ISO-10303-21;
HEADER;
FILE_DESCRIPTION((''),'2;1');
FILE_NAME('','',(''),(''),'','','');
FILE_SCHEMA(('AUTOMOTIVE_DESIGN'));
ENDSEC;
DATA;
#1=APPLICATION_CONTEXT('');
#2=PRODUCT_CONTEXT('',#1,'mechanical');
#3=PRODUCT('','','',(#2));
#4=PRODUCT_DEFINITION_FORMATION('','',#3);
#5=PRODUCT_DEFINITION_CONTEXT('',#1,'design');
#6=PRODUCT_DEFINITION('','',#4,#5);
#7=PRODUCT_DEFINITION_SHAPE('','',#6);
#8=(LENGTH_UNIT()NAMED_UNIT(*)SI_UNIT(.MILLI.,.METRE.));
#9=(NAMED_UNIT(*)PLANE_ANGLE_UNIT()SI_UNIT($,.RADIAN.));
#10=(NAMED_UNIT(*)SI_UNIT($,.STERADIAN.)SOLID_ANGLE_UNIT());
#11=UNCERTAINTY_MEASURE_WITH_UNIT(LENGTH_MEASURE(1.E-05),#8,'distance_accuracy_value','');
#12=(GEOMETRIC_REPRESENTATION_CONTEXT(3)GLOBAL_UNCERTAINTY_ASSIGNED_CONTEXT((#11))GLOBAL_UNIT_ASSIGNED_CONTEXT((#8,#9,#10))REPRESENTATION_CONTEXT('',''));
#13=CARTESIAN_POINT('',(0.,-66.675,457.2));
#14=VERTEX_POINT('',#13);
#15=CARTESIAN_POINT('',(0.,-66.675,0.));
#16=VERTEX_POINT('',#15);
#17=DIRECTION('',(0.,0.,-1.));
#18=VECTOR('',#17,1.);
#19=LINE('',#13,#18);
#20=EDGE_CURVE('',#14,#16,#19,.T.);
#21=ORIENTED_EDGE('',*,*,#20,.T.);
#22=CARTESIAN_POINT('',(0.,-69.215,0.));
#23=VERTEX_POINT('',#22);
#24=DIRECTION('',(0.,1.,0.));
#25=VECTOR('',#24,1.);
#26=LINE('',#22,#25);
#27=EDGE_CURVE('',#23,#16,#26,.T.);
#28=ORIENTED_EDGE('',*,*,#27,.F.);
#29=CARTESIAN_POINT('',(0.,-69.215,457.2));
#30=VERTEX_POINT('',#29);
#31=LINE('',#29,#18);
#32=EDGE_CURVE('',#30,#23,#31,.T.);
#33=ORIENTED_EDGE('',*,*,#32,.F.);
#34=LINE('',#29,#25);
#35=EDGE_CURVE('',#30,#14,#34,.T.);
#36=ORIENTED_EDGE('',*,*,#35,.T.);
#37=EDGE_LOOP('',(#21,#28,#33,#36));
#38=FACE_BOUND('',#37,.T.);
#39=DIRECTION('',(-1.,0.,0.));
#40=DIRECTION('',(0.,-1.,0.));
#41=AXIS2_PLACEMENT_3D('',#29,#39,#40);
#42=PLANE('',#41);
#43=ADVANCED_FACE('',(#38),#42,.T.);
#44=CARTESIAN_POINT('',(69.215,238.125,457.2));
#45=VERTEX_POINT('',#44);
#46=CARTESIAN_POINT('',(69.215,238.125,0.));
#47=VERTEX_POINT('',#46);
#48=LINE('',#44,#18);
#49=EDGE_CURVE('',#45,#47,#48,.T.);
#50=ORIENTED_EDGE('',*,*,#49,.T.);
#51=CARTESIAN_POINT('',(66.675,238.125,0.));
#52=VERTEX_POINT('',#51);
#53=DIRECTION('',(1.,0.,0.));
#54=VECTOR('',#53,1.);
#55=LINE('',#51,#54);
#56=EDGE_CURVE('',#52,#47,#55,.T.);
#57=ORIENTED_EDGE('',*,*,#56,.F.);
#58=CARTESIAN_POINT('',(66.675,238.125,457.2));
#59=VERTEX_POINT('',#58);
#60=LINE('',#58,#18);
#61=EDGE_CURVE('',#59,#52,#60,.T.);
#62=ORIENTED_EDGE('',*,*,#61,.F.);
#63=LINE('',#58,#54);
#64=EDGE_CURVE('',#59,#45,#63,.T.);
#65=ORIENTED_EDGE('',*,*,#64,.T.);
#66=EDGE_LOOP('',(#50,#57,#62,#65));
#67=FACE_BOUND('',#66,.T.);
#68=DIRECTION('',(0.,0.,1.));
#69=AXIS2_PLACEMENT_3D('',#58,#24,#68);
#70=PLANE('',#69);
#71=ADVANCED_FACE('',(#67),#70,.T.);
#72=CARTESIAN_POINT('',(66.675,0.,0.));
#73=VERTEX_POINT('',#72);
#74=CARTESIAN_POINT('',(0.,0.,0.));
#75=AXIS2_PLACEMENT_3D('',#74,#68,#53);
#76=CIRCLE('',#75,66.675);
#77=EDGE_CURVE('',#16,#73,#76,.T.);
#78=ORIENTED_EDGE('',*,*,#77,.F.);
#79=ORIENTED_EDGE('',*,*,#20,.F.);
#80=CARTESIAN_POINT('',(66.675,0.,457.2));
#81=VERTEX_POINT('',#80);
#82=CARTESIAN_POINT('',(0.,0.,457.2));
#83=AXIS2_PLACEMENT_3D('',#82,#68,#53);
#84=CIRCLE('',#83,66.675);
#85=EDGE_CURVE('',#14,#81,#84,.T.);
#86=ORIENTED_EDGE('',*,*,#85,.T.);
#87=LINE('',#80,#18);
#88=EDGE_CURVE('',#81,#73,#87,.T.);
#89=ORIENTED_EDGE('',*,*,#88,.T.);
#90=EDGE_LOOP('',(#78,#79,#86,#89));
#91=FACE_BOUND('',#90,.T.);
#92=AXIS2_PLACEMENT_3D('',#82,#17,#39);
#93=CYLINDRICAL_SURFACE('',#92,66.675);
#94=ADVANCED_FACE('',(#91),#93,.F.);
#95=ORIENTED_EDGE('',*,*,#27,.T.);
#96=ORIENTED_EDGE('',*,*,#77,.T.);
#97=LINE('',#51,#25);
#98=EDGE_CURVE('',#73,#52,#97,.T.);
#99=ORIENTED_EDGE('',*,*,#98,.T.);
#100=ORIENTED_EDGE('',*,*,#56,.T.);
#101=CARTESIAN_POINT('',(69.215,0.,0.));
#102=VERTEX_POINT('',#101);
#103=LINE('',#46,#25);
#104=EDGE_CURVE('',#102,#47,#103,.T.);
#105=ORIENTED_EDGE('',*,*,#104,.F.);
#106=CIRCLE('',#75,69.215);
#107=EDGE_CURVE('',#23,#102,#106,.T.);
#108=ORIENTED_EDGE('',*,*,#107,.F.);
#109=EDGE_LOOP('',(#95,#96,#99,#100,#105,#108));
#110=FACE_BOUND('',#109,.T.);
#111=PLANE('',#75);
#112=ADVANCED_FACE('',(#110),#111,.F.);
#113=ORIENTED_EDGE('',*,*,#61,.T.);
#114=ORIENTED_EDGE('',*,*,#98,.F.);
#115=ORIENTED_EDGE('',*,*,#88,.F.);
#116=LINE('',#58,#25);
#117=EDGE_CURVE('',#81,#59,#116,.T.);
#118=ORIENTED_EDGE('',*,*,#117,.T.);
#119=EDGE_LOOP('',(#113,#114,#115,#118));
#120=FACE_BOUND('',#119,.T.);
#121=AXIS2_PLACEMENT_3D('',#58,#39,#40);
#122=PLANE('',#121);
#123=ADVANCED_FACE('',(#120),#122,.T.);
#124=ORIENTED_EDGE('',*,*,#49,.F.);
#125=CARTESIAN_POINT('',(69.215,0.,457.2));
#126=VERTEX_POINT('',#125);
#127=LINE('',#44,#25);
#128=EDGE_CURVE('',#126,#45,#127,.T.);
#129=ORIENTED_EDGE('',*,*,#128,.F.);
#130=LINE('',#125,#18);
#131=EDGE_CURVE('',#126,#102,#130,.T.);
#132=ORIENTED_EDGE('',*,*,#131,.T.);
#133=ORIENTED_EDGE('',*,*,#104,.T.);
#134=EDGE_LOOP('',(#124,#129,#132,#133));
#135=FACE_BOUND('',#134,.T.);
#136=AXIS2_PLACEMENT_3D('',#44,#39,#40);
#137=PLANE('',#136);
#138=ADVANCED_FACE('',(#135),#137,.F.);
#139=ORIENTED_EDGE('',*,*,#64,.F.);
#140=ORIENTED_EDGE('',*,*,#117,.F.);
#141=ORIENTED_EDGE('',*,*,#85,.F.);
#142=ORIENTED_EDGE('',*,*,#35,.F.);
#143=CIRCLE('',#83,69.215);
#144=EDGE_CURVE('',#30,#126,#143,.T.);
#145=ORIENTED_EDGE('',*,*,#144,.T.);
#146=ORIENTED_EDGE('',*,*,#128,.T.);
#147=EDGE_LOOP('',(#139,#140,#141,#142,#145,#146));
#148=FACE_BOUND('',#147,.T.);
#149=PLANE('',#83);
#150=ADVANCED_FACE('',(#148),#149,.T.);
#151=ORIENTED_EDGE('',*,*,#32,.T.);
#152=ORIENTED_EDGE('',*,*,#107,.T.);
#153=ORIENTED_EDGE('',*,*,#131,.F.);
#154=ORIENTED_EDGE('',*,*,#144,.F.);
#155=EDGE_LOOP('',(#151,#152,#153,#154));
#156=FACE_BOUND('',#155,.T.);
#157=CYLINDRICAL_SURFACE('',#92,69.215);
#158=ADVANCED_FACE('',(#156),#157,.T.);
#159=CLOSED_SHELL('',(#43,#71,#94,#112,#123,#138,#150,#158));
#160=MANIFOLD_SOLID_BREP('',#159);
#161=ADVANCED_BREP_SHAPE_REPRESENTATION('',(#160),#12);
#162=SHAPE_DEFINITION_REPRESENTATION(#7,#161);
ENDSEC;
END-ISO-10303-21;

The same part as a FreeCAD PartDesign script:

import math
import FreeCAD as App
import Part
import Sketcher
Q = App.Units.Quantity

doc = App.newDocument("Part")
body = doc.addObject("PartDesign::Body", "Body")

# Sketch on XY plane
sketch1 = doc.addObject("Sketcher::SketchObject", "Sketch")
body.addObject(sketch1)
sketch1.AttachmentSupport = (doc.XY_Plane, [""])
sketch1.MapMode = "FlatFace"
sketch1.addGeometry(Part.LineSegment(App.Vector(66.675, 238.125, 0), App.Vector(66.675, 0, 0)), False)
sketch1.addGeometry(Part.ArcOfCircle(Part.Circle(App.Vector(0, 0, 0), App.Vector(0, 0, 1), 66.675), math.radians(-90), math.radians(0)), False)
sketch1.addGeometry(Part.LineSegment(App.Vector(0, -66.675, 0), App.Vector(0, -69.215, 0)), False)
sketch1.addGeometry(Part.ArcOfCircle(Part.Circle(App.Vector(0, 0, 0), App.Vector(0, 0, 1), 69.215), math.radians(-90), math.radians(0)), False)
sketch1.addGeometry(Part.LineSegment(App.Vector(69.215, 0, 0), App.Vector(69.215, 238.125, 0)), False)
sketch1.addGeometry(Part.LineSegment(App.Vector(69.215, 238.125, 0), App.Vector(66.675, 238.125, 0)), False)
sketch1.addConstraint(Sketcher.Constraint("Tangent", 0, 2, 1, 2))
sketch1.addConstraint(Sketcher.Constraint("Coincident", 1, 1, 2, 1))
sketch1.addConstraint(Sketcher.Constraint("Coincident", 2, 2, 3, 1))
sketch1.addConstraint(Sketcher.Constraint("Tangent", 3, 2, 4, 1))
sketch1.addConstraint(Sketcher.Constraint("Coincident", 4, 2, 5, 1))
sketch1.addConstraint(Sketcher.Constraint("Coincident", 5, 2, 0, 1))
sketch1.addConstraint(Sketcher.Constraint("Vertical", 0))
sketch1.addConstraint(Sketcher.Constraint("Vertical", 2))
sketch1.addConstraint(Sketcher.Constraint("Vertical", 4))
sketch1.addConstraint(Sketcher.Constraint("Horizontal", 5))
sketch1.addConstraint(Sketcher.Constraint("Coincident", 1, 3, -1, 1))
sketch1.addConstraint(Sketcher.Constraint("Coincident", 3, 3, -1, 1))
sketch1.addConstraint(Sketcher.Constraint("PointOnObject", 1, 1, -2))
sketch1.addConstraint(Sketcher.Constraint("DistanceX", 5, 2, 5, 1, Q("0.1 in")))
sketch1.addConstraint(Sketcher.Constraint("Radius", 1, Q("2.625 in")))
sketch1.addConstraint(Sketcher.Constraint("DistanceY", 1, 1, 4, 2, Q("12 in")))
pad1 = doc.addObject("PartDesign::Pad", "Pad")
body.addObject(pad1)
pad1.Profile = sketch1
pad1.Length = Q("18 in")

doc.recompute()
